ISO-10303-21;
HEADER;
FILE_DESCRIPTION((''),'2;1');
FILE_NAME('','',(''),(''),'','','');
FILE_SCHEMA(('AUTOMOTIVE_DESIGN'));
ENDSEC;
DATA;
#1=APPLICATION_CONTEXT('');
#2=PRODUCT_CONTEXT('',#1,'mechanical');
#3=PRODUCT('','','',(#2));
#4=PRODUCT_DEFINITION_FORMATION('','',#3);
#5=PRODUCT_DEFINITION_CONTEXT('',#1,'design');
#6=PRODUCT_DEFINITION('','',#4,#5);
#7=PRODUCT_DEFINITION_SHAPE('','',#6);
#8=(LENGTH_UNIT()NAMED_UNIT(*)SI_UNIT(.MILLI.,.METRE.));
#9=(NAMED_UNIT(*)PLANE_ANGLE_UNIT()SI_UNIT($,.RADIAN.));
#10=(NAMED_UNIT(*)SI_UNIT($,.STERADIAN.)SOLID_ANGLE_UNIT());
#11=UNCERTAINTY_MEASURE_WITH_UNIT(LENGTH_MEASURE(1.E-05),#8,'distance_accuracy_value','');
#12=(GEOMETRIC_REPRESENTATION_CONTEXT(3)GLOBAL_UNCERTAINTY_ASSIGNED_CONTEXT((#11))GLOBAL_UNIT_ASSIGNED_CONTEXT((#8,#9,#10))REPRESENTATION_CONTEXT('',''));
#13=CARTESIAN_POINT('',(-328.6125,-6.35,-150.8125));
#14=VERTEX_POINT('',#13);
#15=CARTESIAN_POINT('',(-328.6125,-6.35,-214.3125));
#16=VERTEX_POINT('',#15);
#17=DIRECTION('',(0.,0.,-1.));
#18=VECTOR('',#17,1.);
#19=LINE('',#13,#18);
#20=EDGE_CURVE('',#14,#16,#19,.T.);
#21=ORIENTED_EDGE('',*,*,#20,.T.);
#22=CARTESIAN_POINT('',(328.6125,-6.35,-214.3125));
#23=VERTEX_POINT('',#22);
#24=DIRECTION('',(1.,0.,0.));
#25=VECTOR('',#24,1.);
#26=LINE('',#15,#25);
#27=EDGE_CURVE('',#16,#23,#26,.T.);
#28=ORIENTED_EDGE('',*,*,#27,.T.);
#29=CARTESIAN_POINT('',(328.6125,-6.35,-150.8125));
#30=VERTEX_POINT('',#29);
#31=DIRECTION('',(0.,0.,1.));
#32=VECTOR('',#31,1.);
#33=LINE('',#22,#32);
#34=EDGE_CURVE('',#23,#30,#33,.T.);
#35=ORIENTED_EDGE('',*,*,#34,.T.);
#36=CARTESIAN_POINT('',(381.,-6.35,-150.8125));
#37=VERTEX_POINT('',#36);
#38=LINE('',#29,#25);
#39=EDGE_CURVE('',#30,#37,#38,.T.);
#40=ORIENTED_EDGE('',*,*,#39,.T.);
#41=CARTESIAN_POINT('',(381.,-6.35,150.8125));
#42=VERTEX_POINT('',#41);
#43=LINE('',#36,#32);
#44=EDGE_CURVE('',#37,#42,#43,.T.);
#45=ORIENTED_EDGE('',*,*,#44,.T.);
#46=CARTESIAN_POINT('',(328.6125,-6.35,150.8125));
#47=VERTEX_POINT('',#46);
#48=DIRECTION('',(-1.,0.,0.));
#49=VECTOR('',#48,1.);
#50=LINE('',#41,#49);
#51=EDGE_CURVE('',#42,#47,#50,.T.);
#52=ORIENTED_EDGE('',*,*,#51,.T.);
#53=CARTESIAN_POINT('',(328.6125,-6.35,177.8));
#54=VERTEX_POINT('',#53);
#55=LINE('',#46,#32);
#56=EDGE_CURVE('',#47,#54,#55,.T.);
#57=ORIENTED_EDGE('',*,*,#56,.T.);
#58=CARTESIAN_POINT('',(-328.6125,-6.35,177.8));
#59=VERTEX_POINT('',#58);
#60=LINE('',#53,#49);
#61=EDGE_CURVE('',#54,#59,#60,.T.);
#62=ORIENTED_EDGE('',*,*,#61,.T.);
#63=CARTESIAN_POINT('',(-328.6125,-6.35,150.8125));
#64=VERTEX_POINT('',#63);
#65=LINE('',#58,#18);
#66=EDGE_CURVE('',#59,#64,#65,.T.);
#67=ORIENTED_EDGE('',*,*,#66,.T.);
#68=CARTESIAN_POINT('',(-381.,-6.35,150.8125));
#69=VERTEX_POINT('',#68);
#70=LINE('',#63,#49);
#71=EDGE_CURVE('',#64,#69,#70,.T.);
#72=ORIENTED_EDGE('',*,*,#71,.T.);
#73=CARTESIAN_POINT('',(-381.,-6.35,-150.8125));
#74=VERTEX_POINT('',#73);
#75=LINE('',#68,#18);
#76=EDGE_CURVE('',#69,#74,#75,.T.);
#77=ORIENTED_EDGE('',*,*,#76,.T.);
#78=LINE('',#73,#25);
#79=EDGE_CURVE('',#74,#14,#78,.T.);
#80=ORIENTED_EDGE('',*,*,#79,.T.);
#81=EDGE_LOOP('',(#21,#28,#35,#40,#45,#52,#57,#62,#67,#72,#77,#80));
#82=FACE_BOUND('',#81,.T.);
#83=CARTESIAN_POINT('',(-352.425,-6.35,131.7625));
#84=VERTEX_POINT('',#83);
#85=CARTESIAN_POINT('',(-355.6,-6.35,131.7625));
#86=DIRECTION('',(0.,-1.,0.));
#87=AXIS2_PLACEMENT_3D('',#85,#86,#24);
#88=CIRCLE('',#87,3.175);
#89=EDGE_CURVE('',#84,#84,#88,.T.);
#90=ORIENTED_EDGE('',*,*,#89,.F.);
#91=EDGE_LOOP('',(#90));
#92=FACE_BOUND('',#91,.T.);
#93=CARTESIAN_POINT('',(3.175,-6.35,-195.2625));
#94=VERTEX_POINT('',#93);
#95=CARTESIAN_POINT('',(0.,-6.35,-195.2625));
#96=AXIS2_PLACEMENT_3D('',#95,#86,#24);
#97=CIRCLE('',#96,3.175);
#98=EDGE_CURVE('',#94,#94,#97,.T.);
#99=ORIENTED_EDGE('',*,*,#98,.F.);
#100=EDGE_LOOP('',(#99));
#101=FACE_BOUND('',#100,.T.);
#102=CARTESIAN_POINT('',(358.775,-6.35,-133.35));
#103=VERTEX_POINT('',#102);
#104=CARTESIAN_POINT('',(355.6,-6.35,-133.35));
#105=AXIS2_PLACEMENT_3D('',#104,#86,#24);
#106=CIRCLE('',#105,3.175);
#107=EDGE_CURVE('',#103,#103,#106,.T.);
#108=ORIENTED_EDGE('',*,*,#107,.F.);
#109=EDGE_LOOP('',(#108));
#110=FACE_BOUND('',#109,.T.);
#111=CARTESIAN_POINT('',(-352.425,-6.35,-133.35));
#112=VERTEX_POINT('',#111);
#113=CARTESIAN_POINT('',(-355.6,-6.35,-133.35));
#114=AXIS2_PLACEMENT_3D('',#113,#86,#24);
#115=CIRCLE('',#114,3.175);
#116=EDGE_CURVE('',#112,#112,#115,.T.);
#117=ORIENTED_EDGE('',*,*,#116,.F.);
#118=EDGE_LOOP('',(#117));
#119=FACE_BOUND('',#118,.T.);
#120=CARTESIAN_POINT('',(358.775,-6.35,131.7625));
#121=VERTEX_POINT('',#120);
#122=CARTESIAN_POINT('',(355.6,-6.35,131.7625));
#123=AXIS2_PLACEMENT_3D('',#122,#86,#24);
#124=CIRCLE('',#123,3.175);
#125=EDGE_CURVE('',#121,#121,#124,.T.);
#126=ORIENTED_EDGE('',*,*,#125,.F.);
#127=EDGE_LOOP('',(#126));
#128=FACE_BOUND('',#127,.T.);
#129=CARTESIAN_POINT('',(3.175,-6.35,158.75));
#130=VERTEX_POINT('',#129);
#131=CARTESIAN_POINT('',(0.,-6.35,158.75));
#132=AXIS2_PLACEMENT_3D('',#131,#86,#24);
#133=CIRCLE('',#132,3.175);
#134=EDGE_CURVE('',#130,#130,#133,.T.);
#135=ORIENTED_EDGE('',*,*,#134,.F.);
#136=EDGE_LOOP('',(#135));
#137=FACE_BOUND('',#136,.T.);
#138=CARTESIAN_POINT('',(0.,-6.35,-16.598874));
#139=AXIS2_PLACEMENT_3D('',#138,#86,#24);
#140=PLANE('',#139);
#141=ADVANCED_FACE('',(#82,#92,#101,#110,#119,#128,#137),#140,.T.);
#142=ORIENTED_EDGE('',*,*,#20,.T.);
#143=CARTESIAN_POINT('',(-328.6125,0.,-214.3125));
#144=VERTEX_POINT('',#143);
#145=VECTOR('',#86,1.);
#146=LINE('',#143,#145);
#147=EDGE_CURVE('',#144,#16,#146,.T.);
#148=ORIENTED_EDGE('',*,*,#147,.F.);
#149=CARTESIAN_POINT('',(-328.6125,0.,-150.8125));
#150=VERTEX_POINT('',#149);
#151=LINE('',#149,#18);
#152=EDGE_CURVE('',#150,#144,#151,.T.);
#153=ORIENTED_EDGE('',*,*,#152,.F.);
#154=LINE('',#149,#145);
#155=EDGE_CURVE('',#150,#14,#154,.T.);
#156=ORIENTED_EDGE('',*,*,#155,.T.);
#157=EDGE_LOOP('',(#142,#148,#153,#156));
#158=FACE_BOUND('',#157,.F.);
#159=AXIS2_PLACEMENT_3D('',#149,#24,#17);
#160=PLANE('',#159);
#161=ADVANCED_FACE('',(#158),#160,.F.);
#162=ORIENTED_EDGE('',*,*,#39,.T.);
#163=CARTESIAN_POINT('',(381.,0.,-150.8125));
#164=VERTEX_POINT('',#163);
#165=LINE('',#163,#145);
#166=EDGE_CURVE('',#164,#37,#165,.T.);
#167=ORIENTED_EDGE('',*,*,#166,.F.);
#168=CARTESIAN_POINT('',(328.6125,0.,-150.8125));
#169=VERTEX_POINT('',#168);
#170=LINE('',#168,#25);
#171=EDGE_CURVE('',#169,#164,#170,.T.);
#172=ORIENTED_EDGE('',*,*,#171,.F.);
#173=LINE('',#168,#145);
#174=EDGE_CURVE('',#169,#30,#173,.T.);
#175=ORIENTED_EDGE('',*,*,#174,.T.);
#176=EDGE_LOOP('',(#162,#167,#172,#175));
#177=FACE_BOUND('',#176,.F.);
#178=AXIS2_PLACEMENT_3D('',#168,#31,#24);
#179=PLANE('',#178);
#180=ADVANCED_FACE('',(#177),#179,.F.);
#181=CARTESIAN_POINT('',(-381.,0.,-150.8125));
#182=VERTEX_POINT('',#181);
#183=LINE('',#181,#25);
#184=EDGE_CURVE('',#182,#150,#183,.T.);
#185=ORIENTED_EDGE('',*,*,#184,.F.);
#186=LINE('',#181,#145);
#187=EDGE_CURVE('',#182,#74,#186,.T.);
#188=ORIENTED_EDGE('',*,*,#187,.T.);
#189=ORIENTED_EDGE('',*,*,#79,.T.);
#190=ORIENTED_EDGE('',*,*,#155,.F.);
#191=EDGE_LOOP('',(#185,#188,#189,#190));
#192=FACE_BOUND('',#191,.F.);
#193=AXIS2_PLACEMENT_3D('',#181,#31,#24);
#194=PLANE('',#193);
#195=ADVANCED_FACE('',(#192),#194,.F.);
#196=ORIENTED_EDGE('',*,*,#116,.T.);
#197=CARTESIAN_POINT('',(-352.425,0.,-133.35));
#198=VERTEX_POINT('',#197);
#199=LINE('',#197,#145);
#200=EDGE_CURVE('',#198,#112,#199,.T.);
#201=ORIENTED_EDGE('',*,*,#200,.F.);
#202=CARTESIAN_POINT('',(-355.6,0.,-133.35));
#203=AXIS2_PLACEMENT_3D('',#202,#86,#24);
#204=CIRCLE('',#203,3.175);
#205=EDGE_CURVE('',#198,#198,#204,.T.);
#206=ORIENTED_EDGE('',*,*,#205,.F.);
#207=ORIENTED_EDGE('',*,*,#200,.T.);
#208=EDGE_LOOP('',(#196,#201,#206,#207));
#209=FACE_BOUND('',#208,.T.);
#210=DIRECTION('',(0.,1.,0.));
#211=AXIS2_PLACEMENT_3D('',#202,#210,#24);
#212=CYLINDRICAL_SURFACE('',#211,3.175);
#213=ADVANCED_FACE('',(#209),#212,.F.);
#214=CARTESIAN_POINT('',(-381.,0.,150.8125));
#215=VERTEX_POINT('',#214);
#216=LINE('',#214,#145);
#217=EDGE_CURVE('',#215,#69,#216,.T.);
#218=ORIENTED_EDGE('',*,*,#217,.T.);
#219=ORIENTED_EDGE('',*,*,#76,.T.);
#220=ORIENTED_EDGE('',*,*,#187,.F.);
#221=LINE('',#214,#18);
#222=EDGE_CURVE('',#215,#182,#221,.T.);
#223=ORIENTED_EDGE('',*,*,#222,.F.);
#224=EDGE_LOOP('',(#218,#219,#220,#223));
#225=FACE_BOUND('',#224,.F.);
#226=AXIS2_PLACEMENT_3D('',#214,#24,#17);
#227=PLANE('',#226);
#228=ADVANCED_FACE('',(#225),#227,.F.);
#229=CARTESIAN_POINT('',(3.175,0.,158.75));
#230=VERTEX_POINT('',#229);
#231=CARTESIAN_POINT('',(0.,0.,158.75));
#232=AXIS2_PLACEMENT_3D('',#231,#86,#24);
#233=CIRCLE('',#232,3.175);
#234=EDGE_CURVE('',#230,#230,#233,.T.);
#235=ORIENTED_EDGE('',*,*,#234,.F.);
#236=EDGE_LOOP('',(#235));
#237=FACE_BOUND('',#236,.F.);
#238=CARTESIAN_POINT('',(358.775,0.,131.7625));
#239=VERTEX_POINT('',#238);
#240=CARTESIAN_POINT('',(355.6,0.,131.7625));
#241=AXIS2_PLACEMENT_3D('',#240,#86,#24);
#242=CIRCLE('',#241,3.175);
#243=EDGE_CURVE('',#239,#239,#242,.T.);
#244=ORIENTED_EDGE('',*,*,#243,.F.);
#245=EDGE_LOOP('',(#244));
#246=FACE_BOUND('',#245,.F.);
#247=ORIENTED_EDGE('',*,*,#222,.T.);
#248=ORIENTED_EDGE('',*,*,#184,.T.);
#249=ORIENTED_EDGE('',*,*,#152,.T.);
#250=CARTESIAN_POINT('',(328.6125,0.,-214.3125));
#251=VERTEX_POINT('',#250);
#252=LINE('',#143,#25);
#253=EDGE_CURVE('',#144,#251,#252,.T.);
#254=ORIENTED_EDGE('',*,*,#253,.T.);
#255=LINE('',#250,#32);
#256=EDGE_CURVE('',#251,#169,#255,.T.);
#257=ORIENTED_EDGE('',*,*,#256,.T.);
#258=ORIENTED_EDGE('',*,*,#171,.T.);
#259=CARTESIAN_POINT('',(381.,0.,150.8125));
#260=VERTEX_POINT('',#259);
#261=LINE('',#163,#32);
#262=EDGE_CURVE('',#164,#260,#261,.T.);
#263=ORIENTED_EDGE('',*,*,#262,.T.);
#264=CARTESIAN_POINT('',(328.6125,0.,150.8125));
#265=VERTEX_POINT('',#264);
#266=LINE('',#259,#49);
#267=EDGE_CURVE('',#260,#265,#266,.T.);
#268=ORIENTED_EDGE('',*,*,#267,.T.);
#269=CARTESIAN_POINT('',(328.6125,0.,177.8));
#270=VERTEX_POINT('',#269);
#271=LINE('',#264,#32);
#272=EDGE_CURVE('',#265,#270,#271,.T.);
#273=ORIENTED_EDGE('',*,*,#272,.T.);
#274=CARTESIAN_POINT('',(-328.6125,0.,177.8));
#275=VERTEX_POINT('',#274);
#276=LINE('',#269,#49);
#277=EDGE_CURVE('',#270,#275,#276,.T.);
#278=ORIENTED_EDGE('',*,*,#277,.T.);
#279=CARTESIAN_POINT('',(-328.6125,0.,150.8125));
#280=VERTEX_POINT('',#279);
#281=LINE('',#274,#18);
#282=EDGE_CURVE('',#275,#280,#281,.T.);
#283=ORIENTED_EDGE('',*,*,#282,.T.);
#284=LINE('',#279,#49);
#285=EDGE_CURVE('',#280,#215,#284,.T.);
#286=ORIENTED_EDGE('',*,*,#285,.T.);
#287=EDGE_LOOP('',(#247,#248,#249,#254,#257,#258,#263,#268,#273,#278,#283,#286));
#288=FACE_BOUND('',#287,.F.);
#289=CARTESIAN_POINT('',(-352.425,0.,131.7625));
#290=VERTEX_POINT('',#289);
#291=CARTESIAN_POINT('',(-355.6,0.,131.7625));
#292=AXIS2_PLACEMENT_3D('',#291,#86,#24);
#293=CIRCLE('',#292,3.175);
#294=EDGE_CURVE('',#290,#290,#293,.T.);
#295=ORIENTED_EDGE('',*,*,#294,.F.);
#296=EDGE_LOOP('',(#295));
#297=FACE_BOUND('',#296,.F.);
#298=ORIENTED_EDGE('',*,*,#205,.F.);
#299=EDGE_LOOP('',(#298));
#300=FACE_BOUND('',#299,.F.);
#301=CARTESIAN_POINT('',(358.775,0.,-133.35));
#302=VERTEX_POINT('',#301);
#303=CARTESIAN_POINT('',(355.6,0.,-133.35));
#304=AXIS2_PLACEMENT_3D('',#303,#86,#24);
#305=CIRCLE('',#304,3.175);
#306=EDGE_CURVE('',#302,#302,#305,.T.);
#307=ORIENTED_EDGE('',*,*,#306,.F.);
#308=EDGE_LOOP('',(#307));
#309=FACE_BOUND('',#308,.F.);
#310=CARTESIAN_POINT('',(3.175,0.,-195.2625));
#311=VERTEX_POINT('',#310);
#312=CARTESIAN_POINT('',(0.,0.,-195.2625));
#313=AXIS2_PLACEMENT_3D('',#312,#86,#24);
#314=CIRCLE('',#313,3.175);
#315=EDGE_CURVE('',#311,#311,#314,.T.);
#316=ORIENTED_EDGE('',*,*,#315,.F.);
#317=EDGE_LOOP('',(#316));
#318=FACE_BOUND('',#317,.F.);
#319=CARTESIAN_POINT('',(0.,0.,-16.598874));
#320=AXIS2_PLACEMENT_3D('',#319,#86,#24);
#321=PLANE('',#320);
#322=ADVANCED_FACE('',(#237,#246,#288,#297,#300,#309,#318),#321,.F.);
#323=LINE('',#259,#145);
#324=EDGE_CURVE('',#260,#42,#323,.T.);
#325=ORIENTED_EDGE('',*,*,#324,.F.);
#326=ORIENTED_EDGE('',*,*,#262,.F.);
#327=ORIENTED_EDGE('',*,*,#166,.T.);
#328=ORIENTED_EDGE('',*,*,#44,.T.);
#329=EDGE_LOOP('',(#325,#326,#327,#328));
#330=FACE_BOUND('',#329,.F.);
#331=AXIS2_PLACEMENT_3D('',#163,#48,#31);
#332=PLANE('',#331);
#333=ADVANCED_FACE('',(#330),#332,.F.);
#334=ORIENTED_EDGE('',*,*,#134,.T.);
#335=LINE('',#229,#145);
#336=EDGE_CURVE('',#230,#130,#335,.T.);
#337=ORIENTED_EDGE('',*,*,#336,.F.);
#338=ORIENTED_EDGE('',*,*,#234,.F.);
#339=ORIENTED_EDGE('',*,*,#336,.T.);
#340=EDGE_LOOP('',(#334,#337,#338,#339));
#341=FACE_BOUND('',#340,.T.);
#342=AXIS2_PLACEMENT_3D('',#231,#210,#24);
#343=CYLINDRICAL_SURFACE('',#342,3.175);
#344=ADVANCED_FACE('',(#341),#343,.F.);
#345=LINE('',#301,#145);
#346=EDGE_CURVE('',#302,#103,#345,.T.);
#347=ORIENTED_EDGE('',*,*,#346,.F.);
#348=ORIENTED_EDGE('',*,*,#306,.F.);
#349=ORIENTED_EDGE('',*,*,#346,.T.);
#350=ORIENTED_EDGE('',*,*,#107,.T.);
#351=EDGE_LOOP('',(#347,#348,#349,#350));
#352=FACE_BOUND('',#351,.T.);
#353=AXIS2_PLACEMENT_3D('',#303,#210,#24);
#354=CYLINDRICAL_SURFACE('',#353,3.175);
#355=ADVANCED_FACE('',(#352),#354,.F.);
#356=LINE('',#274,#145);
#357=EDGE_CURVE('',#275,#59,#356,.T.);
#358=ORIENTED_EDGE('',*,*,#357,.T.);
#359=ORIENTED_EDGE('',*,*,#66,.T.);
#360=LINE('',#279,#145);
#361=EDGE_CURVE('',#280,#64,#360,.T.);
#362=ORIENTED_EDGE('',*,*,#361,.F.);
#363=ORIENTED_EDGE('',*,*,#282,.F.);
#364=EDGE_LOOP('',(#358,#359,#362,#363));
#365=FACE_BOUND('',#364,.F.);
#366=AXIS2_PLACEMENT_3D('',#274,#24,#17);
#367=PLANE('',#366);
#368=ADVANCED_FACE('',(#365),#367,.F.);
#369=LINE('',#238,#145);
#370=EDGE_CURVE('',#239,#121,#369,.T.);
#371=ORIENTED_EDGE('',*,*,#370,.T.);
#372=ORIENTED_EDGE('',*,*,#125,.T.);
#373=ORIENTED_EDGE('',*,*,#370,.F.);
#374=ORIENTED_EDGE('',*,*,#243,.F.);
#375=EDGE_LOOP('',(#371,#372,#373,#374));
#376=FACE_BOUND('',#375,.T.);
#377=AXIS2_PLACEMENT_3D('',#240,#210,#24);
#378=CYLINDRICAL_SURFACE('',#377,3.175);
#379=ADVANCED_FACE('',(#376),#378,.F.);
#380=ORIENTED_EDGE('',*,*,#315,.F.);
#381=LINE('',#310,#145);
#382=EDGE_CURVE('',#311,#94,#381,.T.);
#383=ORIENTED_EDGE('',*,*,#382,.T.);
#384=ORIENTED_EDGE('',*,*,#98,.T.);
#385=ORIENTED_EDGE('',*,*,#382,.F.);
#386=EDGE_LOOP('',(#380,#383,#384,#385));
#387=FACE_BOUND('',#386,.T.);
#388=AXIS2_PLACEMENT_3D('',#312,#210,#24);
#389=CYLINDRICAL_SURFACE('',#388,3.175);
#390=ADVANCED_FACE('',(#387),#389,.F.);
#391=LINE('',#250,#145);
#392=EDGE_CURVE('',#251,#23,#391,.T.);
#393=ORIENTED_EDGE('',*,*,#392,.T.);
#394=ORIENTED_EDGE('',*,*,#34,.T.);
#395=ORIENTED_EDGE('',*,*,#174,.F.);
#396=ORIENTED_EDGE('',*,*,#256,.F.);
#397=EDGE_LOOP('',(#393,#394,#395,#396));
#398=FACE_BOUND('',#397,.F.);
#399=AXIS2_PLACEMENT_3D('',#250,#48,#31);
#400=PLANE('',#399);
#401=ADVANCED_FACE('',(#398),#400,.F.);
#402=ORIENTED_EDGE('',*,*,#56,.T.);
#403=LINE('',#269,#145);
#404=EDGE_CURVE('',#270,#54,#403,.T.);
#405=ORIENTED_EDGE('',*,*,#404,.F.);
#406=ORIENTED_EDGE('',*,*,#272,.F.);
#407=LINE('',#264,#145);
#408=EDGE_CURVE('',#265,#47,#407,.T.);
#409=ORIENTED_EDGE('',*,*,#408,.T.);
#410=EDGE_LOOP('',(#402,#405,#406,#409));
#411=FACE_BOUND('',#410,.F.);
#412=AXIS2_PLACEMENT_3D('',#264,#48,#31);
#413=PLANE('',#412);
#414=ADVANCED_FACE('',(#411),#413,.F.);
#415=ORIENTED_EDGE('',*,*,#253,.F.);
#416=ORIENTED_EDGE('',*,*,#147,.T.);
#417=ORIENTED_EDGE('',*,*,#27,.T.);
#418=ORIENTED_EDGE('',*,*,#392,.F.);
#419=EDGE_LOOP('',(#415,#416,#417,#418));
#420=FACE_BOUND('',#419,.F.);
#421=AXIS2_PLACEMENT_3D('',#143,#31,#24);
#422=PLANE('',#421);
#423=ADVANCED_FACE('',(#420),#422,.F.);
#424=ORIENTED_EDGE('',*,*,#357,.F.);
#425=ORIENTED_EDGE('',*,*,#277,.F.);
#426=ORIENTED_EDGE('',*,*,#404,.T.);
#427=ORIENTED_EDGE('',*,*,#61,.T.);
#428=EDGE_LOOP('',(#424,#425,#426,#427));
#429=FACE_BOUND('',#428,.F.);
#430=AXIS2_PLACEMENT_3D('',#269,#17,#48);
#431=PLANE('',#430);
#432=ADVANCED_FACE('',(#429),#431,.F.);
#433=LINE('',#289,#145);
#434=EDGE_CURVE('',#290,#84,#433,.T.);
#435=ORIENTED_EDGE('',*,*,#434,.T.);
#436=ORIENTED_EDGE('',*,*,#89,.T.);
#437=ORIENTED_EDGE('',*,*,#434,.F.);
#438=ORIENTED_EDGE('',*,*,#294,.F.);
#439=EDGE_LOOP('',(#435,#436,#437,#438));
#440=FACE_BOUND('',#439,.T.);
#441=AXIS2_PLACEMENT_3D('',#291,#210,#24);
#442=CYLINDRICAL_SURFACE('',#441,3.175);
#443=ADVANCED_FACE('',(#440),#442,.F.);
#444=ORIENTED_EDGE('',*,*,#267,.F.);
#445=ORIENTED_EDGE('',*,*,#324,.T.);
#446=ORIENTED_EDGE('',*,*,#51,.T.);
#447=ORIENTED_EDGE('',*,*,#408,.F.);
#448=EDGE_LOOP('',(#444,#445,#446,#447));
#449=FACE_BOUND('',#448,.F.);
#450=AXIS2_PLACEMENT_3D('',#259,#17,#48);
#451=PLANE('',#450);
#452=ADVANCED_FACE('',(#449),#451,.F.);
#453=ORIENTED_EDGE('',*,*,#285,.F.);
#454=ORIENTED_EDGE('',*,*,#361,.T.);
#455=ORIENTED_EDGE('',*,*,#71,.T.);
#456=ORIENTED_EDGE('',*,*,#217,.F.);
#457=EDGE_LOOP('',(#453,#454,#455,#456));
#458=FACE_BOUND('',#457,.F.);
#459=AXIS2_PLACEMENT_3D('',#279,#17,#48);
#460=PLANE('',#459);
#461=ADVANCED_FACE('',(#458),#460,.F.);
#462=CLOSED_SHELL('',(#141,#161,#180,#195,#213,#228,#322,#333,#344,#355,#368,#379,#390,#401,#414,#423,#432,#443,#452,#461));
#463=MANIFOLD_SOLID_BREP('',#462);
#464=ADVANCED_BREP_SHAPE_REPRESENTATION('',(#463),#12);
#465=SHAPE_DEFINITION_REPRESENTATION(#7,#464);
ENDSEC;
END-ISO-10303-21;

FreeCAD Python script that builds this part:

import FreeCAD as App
import Part
import Sketcher

V = App.Vector
Q = App.Units.Quantity

doc = App.newDocument("Part")
body = doc.addObject("PartDesign::Body", "Body")

sketch1 = body.newObject("Sketcher::SketchObject", "Sketch")
sketch1.AttachmentSupport = (doc.getObject("XZ_Plane"), [""])
sketch1.MapMode = "FlatFace"
sketch1.addGeometry([
    Part.LineSegment(V(-328.6, 150.8, 0), V(-381, 150.8, 0)),
    Part.LineSegment(V(-381, 150.8, 0), V(-381, -150.8, 0)),
    Part.LineSegment(V(-381, -150.8, 0), V(-328.6, -150.8, 0)),
    Part.LineSegment(V(-328.6, -150.8, 0), V(-328.6, -214.3, 0)),
    Part.LineSegment(V(-328.6, -214.3, 0), V(328.6, -214.3, 0)),
    Part.LineSegment(V(328.6, -214.3, 0), V(328.6, -150.8, 0)),
    Part.LineSegment(V(328.6, -150.8, 0), V(381, -150.8, 0)),
    Part.LineSegment(V(381, -150.8, 0), V(381, 150.8, 0)),
    Part.LineSegment(V(381, 150.8, 0), V(328.6, 150.8, 0)),
    Part.LineSegment(V(328.6, 150.8, 0), V(328.6, 177.8, 0)),
    Part.LineSegment(V(328.6, 177.8, 0), V(-328.6, 177.8, 0)),
    Part.LineSegment(V(-328.6, 177.8, 0), V(-328.6, 150.8, 0)),
    Part.Circle(V(-355.6, -133.3, 0), V(0, 0, 1), 3.2),
    Part.Circle(V(0, -195.3, 0), V(0, 0, 1), 3.2),
    Part.Circle(V(355.6, -133.3, 0), V(0, 0, 1), 3.2),
    Part.Circle(V(-355.6, 131.8, 0), V(0, 0, 1), 3.2),
    Part.Circle(V(0, 158.8, 0), V(0, 0, 1), 3.2),
    Part.Circle(V(355.6, 131.8, 0), V(0, 0, 1), 3.2),
], False)
sketch1.addConstraint([
    Sketcher.Constraint("Coincident", 0, 2, 1, 1),
    Sketcher.Constraint("Coincident", 1, 2, 2, 1),
    Sketcher.Constraint("Coincident", 2, 2, 3, 1),
    Sketcher.Constraint("Coincident", 3, 2, 4, 1),
    Sketcher.Constraint("Coincident", 4, 2, 5, 1),
    Sketcher.Constraint("Coincident", 5, 2, 6, 1),
    Sketcher.Constraint("Coincident", 6, 2, 7, 1),
    Sketcher.Constraint("Coincident", 7, 2, 8, 1),
    Sketcher.Constraint("Coincident", 8, 2, 9, 1),
    Sketcher.Constraint("Coincident", 9, 2, 10, 1),
    Sketcher.Constraint("Coincident", 10, 2, 11, 1),
    Sketcher.Constraint("Coincident", 11, 2, 0, 1),
    Sketcher.Constraint("Horizontal", 0),
    Sketcher.Constraint("Vertical", 1),
    Sketcher.Constraint("Horizontal", 2),
    Sketcher.Constraint("Vertical", 3),
    Sketcher.Constraint("Horizontal", 4),
    Sketcher.Constraint("Vertical", 5),
    Sketcher.Constraint("Horizontal", 6),
    Sketcher.Constraint("Vertical", 7),
    Sketcher.Constraint("Horizontal", 8),
    Sketcher.Constraint("Vertical", 9),
    Sketcher.Constraint("Horizontal", 10),
    Sketcher.Constraint("Vertical", 11),
    Sketcher.Constraint("Equal", 12, 13),
    Sketcher.Constraint("Equal", 13, 14),
    Sketcher.Constraint("Equal", 14, 15),
    Sketcher.Constraint("Equal", 15, 16),
    Sketcher.Constraint("Equal", 16, 17),
    Sketcher.Constraint("Symmetric", 0, 2, 6, 2, -1, 1),
    Sketcher.Constraint("Symmetric", 2, 2, 8, 2, -1, 1),
    Sketcher.Constraint("Symmetric", 12, 3, 14, 3, -2),
    Sketcher.Constraint("Symmetric", 15, 3, 17, 3, -2),
    Sketcher.Constraint("Symmetric", 2, 2, 5, 2, -2),
    Sketcher.Constraint("PointOnObject", 13, 3, -2),
    Sketcher.Constraint("PointOnObject", 16, 3, -2),
    Sketcher.Constraint("Vertical", 12, 3, 15, 3),
    Sketcher.Constraint("Vertical", 3, 2, 10, 2),
    Sketcher.Constraint("Diameter", 12, Q("0.25 in")),
    Sketcher.Constraint("DistanceY", 3, 2, 3, 1, Q("2.5 in")),
    Sketcher.Constraint("DistanceX", 12, 3, -1, 1, Q("14 in")),
    Sketcher.Constraint("DistanceX", 0, 2, -1, 1, Q("15 in")),
    Sketcher.Constraint("DistanceY", -1, 1, 9, 2, Q("7 in")),
    Sketcher.Constraint("DistanceY", 12, 3, 16, 3, Q("11.5 in")),
    Sketcher.Constraint("DistanceX", 0, 2, 0, 1, Q("2.0625 in")),
    Sketcher.Constraint("DistanceY", 1, 2, 1, 1, Q("11.875 in")),
    Sketcher.Constraint("DistanceY", 12, 3, -1, 1, Q("5.25 in")),
    Sketcher.Constraint("DistanceY", 15, 3, 0, 2, Q("0.75 in")),
    Sketcher.Constraint("DistanceY", 13, 3, 1, 2, Q("1.75 in")),
])
pad1 = body.newObject("PartDesign::Pad", "Pad")
pad1.Profile = sketch1
pad1.Length = Q("0.25 in")

doc.recompute()
